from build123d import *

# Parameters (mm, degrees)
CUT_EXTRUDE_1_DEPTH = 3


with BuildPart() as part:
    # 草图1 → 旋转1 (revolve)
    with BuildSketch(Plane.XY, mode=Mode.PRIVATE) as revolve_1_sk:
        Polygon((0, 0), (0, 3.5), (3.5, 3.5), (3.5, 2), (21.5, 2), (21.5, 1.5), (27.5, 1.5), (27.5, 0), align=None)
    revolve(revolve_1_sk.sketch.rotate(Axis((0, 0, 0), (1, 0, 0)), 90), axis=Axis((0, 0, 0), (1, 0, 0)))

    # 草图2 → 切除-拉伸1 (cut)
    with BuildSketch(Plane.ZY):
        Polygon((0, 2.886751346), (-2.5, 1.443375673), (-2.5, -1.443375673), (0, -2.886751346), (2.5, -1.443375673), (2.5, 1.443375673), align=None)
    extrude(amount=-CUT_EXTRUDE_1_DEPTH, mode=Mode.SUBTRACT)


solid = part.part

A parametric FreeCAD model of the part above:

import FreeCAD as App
import Part
import Sketcher
Q = App.Units.Quantity

doc = App.newDocument("Part")
params = doc.addObject("Spreadsheet::Sheet", "Params")
for row, (alias, value) in enumerate([
    ("sketch1_width", "6 mm"),
    ("sketch1_width2", "18 mm"),
    ("sketch1_width3", "27.5 mm"),
    ("sketch1_height", "1.5 mm"),
    ("revolution_angle", "360 deg"),
    ("pocket1_length", "3 mm"),
], start=1):
    params.set(f"A{row}", alias)
    params.set(f"B{row}", "=" + value)
    params.setAlias(f"B{row}", alias)

body = doc.addObject("PartDesign::Body", "Body")

# Sketch on XY plane
sketch1 = body.newObject("Sketcher::SketchObject", "Sketch")
sketch1.AttachmentSupport = (doc.getObject("XY_Plane"), [""])
sketch1.MapMode = "FlatFace"
sketch1.addGeometry([
    Part.LineSegment(App.Vector(0, 3.5, 0), App.Vector(0, 0, 0)),  # 0
    Part.LineSegment(App.Vector(0, 0, 0), App.Vector(27.5, 0, 0)),  # 1
    Part.LineSegment(App.Vector(27.5, 0, 0), App.Vector(27.5, 1.5, 0)),  # 2
    Part.LineSegment(App.Vector(27.5, 1.5, 0), App.Vector(21.5, 1.5, 0)),  # 3
    Part.LineSegment(App.Vector(21.5, 1.5, 0), App.Vector(21.5, 2, 0)),  # 4
    Part.LineSegment(App.Vector(21.5, 2, 0), App.Vector(3.5, 2, 0)),  # 5
    Part.LineSegment(App.Vector(3.5, 2, 0), App.Vector(3.5, 3.5, 0)),  # 6
    Part.LineSegment(App.Vector(3.5, 3.5, 0), App.Vector(0, 3.5, 0)),  # 7
], False)
sketch1.addConstraint([
    Sketcher.Constraint("Coincident", 0, 2, 1, 1),
    Sketcher.Constraint("Coincident", 1, 2, 2, 1),
    Sketcher.Constraint("Coincident", 2, 2, 3, 1),
    Sketcher.Constraint("Coincident", 3, 2, 4, 1),
    Sketcher.Constraint("Coincident", 4, 2, 5, 1),
    Sketcher.Constraint("Coincident", 5, 2, 6, 1),
    Sketcher.Constraint("Coincident", 6, 2, 7, 1),
    Sketcher.Constraint("Coincident", 7, 2, 0, 1),
    Sketcher.Constraint("Vertical", 0),
    Sketcher.Constraint("Horizontal", 1),
    Sketcher.Constraint("Vertical", 2),
    Sketcher.Constraint("Horizontal", 3),
    Sketcher.Constraint("Vertical", 4),
    Sketcher.Constraint("Horizontal", 5),
    Sketcher.Constraint("Vertical", 6),
    Sketcher.Constraint("Horizontal", 7),
    Sketcher.Constraint("Coincident", 0, 2, -1, 1),
    Sketcher.Constraint("Equal", 7, 0),
    Sketcher.Constraint("Equal", 2, 6),
    Sketcher.Constraint("DistanceX", 3, 2, 3, 1, Q("6 mm")),
    Sketcher.Constraint("DistanceX", 5, 2, 5, 1, Q("18 mm")),
    Sketcher.Constraint("DistanceX", 1, 1, 1, 2, Q("27.5 mm")),
    Sketcher.Constraint("DistanceY", 2, 1, 2, 2, Q("1.5 mm")),
])
sketch1.setExpression("Constraints[19]", "Params.sketch1_width")
sketch1.setExpression("Constraints[20]", "Params.sketch1_width2")
sketch1.setExpression("Constraints[21]", "Params.sketch1_width3")
sketch1.setExpression("Constraints[22]", "Params.sketch1_height")
revolution = body.newObject("PartDesign::Revolution", "Revolution")
revolution.Profile = sketch1
revolution.ReferenceAxis = (sketch1, ["H_Axis"])
revolution.setExpression("Angle", "Params.revolution_angle")

# Sketch on YZ plane
sketch2 = body.newObject("Sketcher::SketchObject", "Sketch001")
sketch2.AttachmentSupport = (doc.getObject("YZ_Plane"), [""])
sketch2.MapMode = "FlatFace"
sketch2.addGeometry([
    Part.LineSegment(App.Vector(2.886751, 0, 0), App.Vector(1.443376, -2.5, 0)),  # 0
    Part.LineSegment(App.Vector(1.443376, -2.5, 0), App.Vector(-1.443376, -2.5, 0)),  # 1
    Part.LineSegment(App.Vector(-1.443376, -2.5, 0), App.Vector(-2.886751, 0, 0)),  # 2
    Part.LineSegment(App.Vector(-2.886751, 0, 0), App.Vector(-1.443376, 2.5, 0)),  # 3
    Part.LineSegment(App.Vector(-1.443376, 2.5, 0), App.Vector(1.443376, 2.5, 0)),  # 4
    Part.LineSegment(App.Vector(1.443376, 2.5, 0), App.Vector(2.886751, 0, 0)),  # 5
], False)
sketch2.addConstraint([
    Sketcher.Constraint("Coincident", 0, 2, 1, 1),
    Sketcher.Constraint("Coincident", 1, 2, 2, 1),
    Sketcher.Constraint("Coincident", 2, 2, 3, 1),
    Sketcher.Constraint("Coincident", 3, 2, 4, 1),
    Sketcher.Constraint("Coincident", 4, 2, 5, 1),
    Sketcher.Constraint("Coincident", 5, 2, 0, 1),
    Sketcher.Constraint("Horizontal", 1),
    Sketcher.Constraint("Horizontal", 4),
    Sketcher.Constraint("Symmetric", 0, 2, 3, 2, -1, 1),
    Sketcher.Constraint("Symmetric", 2, 2, 5, 2, -1, 1),
    Sketcher.Constraint("PointOnObject", 2, 2, -1),
    Sketcher.Constraint("Parallel", 2, 5),
    Sketcher.Constraint("Vertical", 1, 2, 3, 2),
    Sketcher.Constraint("Angle", 0, Q("-120 deg")),
    Sketcher.Constraint("DistanceY", 1, 2, 3, 2, Q("5 mm")),
    Sketcher.Constraint("DistanceX", 1, 2, 1, 1, Q("2.886751 mm")),
])
pocket1 = body.newObject("PartDesign::Pocket", "Pocket")
pocket1.Profile = sketch2
pocket1.setExpression("Length", "Params.pocket1_length")
pocket1.Reversed = True

doc.recompute()
